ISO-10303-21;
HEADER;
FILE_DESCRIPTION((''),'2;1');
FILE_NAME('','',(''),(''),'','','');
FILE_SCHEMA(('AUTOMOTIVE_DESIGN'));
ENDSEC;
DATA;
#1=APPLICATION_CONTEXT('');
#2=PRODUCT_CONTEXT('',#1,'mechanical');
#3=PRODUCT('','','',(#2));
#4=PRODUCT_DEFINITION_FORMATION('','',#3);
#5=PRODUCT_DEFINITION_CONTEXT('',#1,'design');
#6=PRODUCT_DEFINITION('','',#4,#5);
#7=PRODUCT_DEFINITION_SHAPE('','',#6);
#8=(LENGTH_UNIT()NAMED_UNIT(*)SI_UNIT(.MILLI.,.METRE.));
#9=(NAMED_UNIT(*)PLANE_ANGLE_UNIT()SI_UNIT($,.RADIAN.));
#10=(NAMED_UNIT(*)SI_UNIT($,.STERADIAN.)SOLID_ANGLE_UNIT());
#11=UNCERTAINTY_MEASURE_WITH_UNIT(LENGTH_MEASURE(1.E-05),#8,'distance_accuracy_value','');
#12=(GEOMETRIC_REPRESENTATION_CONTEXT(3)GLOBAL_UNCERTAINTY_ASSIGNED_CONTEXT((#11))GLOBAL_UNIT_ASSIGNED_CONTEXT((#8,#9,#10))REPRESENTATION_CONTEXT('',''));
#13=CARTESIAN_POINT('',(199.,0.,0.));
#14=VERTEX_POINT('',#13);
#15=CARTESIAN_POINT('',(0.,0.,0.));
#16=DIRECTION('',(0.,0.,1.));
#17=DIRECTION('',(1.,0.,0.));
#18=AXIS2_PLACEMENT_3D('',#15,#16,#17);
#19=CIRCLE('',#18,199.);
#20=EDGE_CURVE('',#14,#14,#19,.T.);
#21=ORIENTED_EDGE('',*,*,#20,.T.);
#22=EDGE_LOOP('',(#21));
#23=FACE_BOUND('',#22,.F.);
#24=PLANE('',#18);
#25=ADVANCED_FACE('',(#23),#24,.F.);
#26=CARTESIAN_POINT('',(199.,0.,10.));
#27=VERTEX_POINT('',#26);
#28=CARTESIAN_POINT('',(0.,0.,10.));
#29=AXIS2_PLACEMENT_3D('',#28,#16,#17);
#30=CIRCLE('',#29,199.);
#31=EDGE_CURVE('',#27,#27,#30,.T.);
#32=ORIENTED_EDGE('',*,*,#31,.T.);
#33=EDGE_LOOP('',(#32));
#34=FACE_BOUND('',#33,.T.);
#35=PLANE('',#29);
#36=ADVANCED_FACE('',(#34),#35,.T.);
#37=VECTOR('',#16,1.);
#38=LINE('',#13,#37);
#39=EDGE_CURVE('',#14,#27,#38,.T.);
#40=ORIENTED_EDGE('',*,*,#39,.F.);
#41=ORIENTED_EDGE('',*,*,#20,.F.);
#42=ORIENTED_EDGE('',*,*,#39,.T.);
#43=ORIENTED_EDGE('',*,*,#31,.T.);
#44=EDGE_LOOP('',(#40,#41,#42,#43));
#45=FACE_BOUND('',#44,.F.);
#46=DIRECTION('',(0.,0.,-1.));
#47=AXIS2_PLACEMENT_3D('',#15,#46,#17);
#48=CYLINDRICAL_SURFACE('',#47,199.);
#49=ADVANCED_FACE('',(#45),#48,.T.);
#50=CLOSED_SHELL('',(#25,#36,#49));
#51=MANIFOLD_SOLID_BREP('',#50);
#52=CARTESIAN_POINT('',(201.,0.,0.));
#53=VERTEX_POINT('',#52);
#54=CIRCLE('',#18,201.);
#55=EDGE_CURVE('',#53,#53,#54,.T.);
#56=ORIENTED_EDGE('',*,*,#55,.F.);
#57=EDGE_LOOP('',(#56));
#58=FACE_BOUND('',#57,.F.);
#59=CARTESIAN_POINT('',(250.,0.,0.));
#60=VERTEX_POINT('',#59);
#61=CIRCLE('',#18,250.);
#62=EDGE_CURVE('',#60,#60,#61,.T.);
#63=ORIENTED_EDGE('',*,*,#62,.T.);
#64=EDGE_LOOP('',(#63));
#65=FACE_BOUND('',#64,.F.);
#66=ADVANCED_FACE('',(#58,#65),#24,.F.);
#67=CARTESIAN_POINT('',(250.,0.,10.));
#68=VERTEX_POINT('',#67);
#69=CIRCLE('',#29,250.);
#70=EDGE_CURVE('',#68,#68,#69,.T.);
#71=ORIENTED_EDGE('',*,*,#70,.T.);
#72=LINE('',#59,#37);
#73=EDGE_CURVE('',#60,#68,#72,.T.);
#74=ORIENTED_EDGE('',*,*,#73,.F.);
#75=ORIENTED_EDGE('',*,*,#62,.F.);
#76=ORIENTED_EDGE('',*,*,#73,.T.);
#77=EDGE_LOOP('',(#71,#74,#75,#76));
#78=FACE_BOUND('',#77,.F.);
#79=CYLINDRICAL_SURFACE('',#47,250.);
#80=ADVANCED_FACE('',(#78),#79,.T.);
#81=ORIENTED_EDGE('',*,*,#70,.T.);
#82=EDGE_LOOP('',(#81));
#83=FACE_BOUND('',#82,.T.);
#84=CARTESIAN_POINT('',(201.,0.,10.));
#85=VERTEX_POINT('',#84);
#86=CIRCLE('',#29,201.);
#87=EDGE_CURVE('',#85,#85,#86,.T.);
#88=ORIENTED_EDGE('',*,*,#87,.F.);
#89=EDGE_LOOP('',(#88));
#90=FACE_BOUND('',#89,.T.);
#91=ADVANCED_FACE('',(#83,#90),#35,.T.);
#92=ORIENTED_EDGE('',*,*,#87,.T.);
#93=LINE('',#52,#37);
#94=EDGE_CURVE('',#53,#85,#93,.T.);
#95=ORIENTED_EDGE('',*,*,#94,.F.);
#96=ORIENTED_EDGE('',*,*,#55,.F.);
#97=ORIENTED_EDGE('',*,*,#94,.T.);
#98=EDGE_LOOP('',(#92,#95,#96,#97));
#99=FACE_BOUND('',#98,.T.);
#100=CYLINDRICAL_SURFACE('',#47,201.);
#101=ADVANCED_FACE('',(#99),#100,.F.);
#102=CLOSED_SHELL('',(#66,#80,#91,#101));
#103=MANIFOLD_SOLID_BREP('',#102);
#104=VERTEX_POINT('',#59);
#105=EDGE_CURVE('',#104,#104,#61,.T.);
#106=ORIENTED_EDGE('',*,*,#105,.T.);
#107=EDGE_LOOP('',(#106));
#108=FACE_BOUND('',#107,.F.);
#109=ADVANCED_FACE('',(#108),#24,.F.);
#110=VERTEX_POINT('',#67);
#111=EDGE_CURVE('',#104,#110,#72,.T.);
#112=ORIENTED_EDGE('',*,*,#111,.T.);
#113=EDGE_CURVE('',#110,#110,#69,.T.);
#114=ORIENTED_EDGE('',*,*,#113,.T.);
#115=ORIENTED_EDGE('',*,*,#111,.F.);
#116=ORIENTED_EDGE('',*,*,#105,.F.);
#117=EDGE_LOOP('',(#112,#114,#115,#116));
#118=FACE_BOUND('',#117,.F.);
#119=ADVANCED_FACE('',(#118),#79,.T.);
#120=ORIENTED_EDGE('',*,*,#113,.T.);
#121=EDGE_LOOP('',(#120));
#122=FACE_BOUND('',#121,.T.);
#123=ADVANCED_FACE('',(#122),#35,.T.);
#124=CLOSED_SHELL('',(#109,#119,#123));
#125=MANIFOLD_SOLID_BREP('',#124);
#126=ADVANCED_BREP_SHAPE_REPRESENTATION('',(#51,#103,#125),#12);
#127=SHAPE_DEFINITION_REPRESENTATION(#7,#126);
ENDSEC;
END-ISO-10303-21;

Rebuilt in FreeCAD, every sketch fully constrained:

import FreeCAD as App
import Part
import Sketcher

V = App.Vector
Q = App.Units.Quantity

doc = App.newDocument("Part")
body = doc.addObject("PartDesign::Body", "Body")

# Sketch on XY plane
sketch1 = doc.addObject("Sketcher::SketchObject", "Sketch")
body.addObject(sketch1)
sketch1.AttachmentSupport = (doc.XY_Plane, [""])
sketch1.MapMode = "FlatFace"
sketch1.addGeometry(Part.Circle(V(0, 0, 0), V(0, 0, 1), 199), False)
sketch1.addConstraint(Sketcher.Constraint("Coincident", 0, 3, -1, 1))
sketch1.addConstraint(Sketcher.Constraint("Diameter", 0, Q("398 mm")))
pad1 = doc.addObject("PartDesign::Pad", "Pad")
body.addObject(pad1)
pad1.Profile = sketch1
pad1.Length = 10
body2 = doc.addObject("PartDesign::Body", "Body001")

# Sketch on XY plane
sketch2 = doc.addObject("Sketcher::SketchObject", "Sketch001")
body2.addObject(sketch2)
sketch2.AttachmentSupport = (doc.getObject("XY_Plane001"), [""])
sketch2.MapMode = "FlatFace"
sketch2.addGeometry(Part.Circle(V(0, 0, 0), V(0, 0, 1), 250), False)
sketch2.addGeometry(Part.Circle(V(0, 0, 0), V(0, 0, 1), 201), False)
sketch2.addConstraint(Sketcher.Constraint("Coincident", 0, 3, -1, 1))
sketch2.addConstraint(Sketcher.Constraint("Coincident", 1, 3, -1, 1))
sketch2.addConstraint(Sketcher.Constraint("Diameter", 0, Q("500 mm")))
sketch2.addConstraint(Sketcher.Constraint("Diameter", 1, Q("402 mm")))
pad2 = doc.addObject("PartDesign::Pad", "Pad001")
body2.addObject(pad2)
pad2.Profile = sketch2
pad2.Length = 10
body3 = doc.addObject("PartDesign::Body", "Body002")

# Sketch on XY plane
sketch3 = doc.addObject("Sketcher::SketchObject", "Sketch002")
body3.addObject(sketch3)
sketch3.AttachmentSupport = (doc.getObject("XY_Plane002"), [""])
sketch3.MapMode = "FlatFace"
sketch3.addGeometry(Part.Circle(V(0, 0, 0), V(0, 0, 1), 250), False)
sketch3.addConstraint(Sketcher.Constraint("Coincident", 0, 3, -1, 1))
sketch3.addConstraint(Sketcher.Constraint("Diameter", 0, Q("500 mm")))
pad3 = doc.addObject("PartDesign::Pad", "Pad002")
body3.addObject(pad3)
pad3.Profile = sketch3
pad3.Length = 10

doc.recompute()
